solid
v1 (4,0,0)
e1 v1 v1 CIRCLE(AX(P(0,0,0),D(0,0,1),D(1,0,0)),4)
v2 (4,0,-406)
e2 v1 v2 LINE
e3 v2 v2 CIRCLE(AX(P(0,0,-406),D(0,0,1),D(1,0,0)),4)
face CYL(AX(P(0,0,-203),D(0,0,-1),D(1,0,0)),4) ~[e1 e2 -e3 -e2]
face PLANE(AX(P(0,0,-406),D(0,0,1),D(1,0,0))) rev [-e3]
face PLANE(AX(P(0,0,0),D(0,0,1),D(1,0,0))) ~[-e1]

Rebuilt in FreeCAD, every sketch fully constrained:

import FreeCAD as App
import Part
import Sketcher

V = App.Vector

doc = App.newDocument("Part")
body = doc.addObject("PartDesign::Body", "Body")

sketch1 = body.newObject("Sketcher::SketchObject", "Sketch")
sketch1.AttachmentSupport = (doc.getObject("XZ_Plane"), [""])
sketch1.MapMode = "FlatFace"
sketch1.addGeometry(Part.LineSegment(V(0, -406, 0), V(0, 0, 0)), False)
sketch1.addGeometry(Part.LineSegment(V(0, 0, 0), V(4, 0, 0)), False)
sketch1.addGeometry(Part.LineSegment(V(4, 0, 0), V(4, -406, 0)), False)
sketch1.addGeometry(Part.LineSegment(V(4, -406, 0), V(0, -406, 0)), False)
sketch1.addConstraint(Sketcher.Constraint("Coincident", 0, 2, 1, 1))
sketch1.addConstraint(Sketcher.Constraint("Coincident", 1, 2, 2, 1))
sketch1.addConstraint(Sketcher.Constraint("Coincident", 2, 2, 3, 1))
sketch1.addConstraint(Sketcher.Constraint("Coincident", 3, 2, 0, 1))
sketch1.addConstraint(Sketcher.Constraint("Vertical", 0))
sketch1.addConstraint(Sketcher.Constraint("Horizontal", 1))
sketch1.addConstraint(Sketcher.Constraint("Vertical", 2))
sketch1.addConstraint(Sketcher.Constraint("Horizontal", 3))
sketch1.addConstraint(Sketcher.Constraint("Coincident", 0, 2, -1, 1))
sketch1.addConstraint(Sketcher.Constraint("DistanceX", 1, 1, 1, 2, 4.0))
sketch1.addConstraint(Sketcher.Constraint("DistanceY", 0, 1, 0, 2, 406.0))
revolution = body.newObject("PartDesign::Revolution", "Revolution")
revolution.Profile = sketch1
revolution.ReferenceAxis = (sketch1, ["V_Axis"])
revolution.Angle = 360

doc.recompute()
